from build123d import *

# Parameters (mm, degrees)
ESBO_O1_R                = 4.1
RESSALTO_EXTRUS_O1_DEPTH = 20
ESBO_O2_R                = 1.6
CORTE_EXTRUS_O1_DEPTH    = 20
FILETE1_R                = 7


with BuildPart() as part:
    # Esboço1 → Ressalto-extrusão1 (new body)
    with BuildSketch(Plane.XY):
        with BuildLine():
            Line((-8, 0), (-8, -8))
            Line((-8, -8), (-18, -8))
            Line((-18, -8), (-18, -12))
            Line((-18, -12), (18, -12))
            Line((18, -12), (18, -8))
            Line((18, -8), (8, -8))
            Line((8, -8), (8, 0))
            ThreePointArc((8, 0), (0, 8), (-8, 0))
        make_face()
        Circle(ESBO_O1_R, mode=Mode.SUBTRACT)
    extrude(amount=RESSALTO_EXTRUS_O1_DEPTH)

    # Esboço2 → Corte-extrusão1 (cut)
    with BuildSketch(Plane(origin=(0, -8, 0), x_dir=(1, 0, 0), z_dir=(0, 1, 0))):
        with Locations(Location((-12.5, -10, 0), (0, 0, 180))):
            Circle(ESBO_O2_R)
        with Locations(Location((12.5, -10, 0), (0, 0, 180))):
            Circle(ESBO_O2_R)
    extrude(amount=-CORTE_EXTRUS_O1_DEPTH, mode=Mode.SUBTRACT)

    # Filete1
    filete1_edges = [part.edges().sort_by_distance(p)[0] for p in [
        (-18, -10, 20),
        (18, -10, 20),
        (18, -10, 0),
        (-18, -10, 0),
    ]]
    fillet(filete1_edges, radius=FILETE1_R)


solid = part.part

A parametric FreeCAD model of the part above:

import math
import FreeCAD as App
import Part
import Sketcher
from FreeCAD import Vector


def edges_at(feature, points):
    """Names of the edges that pass closest to the given points."""
    edges = feature.Shape.Edges
    near = lambda p: min(range(len(edges)), key=lambda i: edges[i].distToShape(Part.Vertex(*p))[0])
    return sorted({f"Edge{near(p) + 1}" for p in points})

doc = App.newDocument("Part")
params = doc.addObject("Spreadsheet::Sheet", "Params")
for row, (alias, value) in enumerate([
    ("sketch1_radius", "8 mm"),
    ("sketch1_diameter", "8.2 mm"),
    ("sketch1_width", "10 mm"),
    ("sketch1_height", "8 mm"),
    ("sketch1_height2", "4 mm"),
    ("pad1_length", "20 mm"),
    ("sketch2_diameter", "3.2 mm"),
    ("pocket1_length", "20 mm"),
    ("fillet_radius", "7 mm"),
], start=1):
    params.set(f"A{row}", alias)
    params.set(f"B{row}", "=" + value)
    params.setAlias(f"B{row}", alias)

body = doc.addObject("PartDesign::Body", "Body")

# Sketch on XY plane
sketch1 = doc.addObject("Sketcher::SketchObject", "Sketch")
body.addObject(sketch1)
sketch1.AttachmentSupport = (doc.XY_Plane, [""])
sketch1.MapMode = "FlatFace"
sketch1.addGeometry(Part.LineSegment(Vector(-8, 0, 0), Vector(-8, -8, 0)), False)
sketch1.addGeometry(Part.LineSegment(Vector(-8, -8, 0), Vector(-18, -8, 0)), False)
sketch1.addGeometry(Part.LineSegment(Vector(-18, -8, 0), Vector(-18, -12, 0)), False)
sketch1.addGeometry(Part.LineSegment(Vector(-18, -12, 0), Vector(18, -12, 0)), False)
sketch1.addGeometry(Part.LineSegment(Vector(18, -12, 0), Vector(18, -8, 0)), False)
sketch1.addGeometry(Part.LineSegment(Vector(18, -8, 0), Vector(8, -8, 0)), False)
sketch1.addGeometry(Part.LineSegment(Vector(8, -8, 0), Vector(8, 0, 0)), False)
sketch1.addGeometry(Part.ArcOfCircle(Part.Circle(Vector(0, 0, 0), Vector(0, 0, 1), 8), math.radians(0), math.radians(180)), False)
sketch1.addGeometry(Part.Circle(Vector(0, 0, 0), Vector(0, 0, 1), 4.1), False)
sketch1.addConstraint(Sketcher.Constraint("Coincident", 0, 2, 1, 1))
sketch1.addConstraint(Sketcher.Constraint("Coincident", 1, 2, 2, 1))
sketch1.addConstraint(Sketcher.Constraint("Coincident", 2, 2, 3, 1))
sketch1.addConstraint(Sketcher.Constraint("Coincident", 3, 2, 4, 1))
sketch1.addConstraint(Sketcher.Constraint("Coincident", 4, 2, 5, 1))
sketch1.addConstraint(Sketcher.Constraint("Coincident", 5, 2, 6, 1))
sketch1.addConstraint(Sketcher.Constraint("Tangent", 6, 2, 7, 1))
sketch1.addConstraint(Sketcher.Constraint("Tangent", 7, 2, 0, 1))
sketch1.addConstraint(Sketcher.Constraint("Vertical", 0))
sketch1.addConstraint(Sketcher.Constraint("Horizontal", 1))
sketch1.addConstraint(Sketcher.Constraint("Vertical", 2))
sketch1.addConstraint(Sketcher.Constraint("Horizontal", 3))
sketch1.addConstraint(Sketcher.Constraint("Vertical", 4))
sketch1.addConstraint(Sketcher.Constraint("Horizontal", 5))
sketch1.addConstraint(Sketcher.Constraint("Vertical", 6))
sketch1.addConstraint(Sketcher.Constraint("Coincident", 7, 3, -1, 1))
sketch1.addConstraint(Sketcher.Constraint("Coincident", 8, 3, -1, 1))
sketch1.addConstraint(Sketcher.Constraint("Symmetric", 1, 2, 4, 2, -2))
sketch1.addConstraint(Sketcher.Constraint("Radius", 7, 8.0))
sketch1.addConstraint(Sketcher.Constraint("Diameter", 8, 8.2))
sketch1.addConstraint(Sketcher.Constraint("DistanceX", 1, 2, 1, 1, 10.0))
sketch1.addConstraint(Sketcher.Constraint("DistanceY", 0, 2, 0, 1, 8.0))
sketch1.addConstraint(Sketcher.Constraint("DistanceY", 2, 2, 2, 1, 4.0))
sketch1.setExpression("Constraints[18]", "Params.sketch1_radius")
sketch1.setExpression("Constraints[19]", "Params.sketch1_diameter")
sketch1.setExpression("Constraints[20]", "Params.sketch1_width")
sketch1.setExpression("Constraints[21]", "Params.sketch1_height")
sketch1.setExpression("Constraints[22]", "Params.sketch1_height2")
pad1 = doc.addObject("PartDesign::Pad", "Pad")
body.addObject(pad1)
pad1.Profile = sketch1
pad1.setExpression("Length", "Params.pad1_length")

# Sketch on XZ plane
sketch2 = doc.addObject("Sketcher::SketchObject", "Sketch001")
body.addObject(sketch2)
sketch2.AttachmentSupport = (doc.XZ_Plane, [""])
sketch2.MapMode = "FlatFace"
sketch2.AttachmentOffset = App.Placement(Vector(0, 0, 8), App.Rotation())
sketch2.addGeometry(Part.Circle(Vector(-12.5, 10, 0), Vector(0, 0, 1), 1.6), False)
sketch2.addGeometry(Part.Circle(Vector(12.5, 10, 0), Vector(0, 0, 1), 1.6), False)
sketch2.addConstraint(Sketcher.Constraint("Equal", 0, 1))
sketch2.addConstraint(Sketcher.Constraint("Symmetric", 0, 3, 1, 3, -2))
sketch2.addConstraint(Sketcher.Constraint("Diameter", 0, 3.2))
sketch2.addConstraint(Sketcher.Constraint("DistanceY", -1, 1, 0, 3, 10.0))
sketch2.addConstraint(Sketcher.Constraint("DistanceX", 0, 3, 1, 3, 25.0))
sketch2.setExpression("Constraints[2]", "Params.sketch2_diameter")
pocket1 = doc.addObject("PartDesign::Pocket", "Pocket")
body.addObject(pocket1)
pocket1.Profile = sketch2
pocket1.setExpression("Length", "Params.pocket1_length")
pocket1.Reversed = True
doc.recompute()

fillet = doc.addObject("PartDesign::Fillet", "Fillet")
body.addObject(fillet)
fillet.Base = (pocket1, edges_at(pocket1, [
    (-18, -10, 20),
    (18, -10, 20),
    (18, -10, 0),
    (-18, -10, 0),
]))
fillet.setExpression("Radius", "Params.fillet_radius")

doc.recompute()
